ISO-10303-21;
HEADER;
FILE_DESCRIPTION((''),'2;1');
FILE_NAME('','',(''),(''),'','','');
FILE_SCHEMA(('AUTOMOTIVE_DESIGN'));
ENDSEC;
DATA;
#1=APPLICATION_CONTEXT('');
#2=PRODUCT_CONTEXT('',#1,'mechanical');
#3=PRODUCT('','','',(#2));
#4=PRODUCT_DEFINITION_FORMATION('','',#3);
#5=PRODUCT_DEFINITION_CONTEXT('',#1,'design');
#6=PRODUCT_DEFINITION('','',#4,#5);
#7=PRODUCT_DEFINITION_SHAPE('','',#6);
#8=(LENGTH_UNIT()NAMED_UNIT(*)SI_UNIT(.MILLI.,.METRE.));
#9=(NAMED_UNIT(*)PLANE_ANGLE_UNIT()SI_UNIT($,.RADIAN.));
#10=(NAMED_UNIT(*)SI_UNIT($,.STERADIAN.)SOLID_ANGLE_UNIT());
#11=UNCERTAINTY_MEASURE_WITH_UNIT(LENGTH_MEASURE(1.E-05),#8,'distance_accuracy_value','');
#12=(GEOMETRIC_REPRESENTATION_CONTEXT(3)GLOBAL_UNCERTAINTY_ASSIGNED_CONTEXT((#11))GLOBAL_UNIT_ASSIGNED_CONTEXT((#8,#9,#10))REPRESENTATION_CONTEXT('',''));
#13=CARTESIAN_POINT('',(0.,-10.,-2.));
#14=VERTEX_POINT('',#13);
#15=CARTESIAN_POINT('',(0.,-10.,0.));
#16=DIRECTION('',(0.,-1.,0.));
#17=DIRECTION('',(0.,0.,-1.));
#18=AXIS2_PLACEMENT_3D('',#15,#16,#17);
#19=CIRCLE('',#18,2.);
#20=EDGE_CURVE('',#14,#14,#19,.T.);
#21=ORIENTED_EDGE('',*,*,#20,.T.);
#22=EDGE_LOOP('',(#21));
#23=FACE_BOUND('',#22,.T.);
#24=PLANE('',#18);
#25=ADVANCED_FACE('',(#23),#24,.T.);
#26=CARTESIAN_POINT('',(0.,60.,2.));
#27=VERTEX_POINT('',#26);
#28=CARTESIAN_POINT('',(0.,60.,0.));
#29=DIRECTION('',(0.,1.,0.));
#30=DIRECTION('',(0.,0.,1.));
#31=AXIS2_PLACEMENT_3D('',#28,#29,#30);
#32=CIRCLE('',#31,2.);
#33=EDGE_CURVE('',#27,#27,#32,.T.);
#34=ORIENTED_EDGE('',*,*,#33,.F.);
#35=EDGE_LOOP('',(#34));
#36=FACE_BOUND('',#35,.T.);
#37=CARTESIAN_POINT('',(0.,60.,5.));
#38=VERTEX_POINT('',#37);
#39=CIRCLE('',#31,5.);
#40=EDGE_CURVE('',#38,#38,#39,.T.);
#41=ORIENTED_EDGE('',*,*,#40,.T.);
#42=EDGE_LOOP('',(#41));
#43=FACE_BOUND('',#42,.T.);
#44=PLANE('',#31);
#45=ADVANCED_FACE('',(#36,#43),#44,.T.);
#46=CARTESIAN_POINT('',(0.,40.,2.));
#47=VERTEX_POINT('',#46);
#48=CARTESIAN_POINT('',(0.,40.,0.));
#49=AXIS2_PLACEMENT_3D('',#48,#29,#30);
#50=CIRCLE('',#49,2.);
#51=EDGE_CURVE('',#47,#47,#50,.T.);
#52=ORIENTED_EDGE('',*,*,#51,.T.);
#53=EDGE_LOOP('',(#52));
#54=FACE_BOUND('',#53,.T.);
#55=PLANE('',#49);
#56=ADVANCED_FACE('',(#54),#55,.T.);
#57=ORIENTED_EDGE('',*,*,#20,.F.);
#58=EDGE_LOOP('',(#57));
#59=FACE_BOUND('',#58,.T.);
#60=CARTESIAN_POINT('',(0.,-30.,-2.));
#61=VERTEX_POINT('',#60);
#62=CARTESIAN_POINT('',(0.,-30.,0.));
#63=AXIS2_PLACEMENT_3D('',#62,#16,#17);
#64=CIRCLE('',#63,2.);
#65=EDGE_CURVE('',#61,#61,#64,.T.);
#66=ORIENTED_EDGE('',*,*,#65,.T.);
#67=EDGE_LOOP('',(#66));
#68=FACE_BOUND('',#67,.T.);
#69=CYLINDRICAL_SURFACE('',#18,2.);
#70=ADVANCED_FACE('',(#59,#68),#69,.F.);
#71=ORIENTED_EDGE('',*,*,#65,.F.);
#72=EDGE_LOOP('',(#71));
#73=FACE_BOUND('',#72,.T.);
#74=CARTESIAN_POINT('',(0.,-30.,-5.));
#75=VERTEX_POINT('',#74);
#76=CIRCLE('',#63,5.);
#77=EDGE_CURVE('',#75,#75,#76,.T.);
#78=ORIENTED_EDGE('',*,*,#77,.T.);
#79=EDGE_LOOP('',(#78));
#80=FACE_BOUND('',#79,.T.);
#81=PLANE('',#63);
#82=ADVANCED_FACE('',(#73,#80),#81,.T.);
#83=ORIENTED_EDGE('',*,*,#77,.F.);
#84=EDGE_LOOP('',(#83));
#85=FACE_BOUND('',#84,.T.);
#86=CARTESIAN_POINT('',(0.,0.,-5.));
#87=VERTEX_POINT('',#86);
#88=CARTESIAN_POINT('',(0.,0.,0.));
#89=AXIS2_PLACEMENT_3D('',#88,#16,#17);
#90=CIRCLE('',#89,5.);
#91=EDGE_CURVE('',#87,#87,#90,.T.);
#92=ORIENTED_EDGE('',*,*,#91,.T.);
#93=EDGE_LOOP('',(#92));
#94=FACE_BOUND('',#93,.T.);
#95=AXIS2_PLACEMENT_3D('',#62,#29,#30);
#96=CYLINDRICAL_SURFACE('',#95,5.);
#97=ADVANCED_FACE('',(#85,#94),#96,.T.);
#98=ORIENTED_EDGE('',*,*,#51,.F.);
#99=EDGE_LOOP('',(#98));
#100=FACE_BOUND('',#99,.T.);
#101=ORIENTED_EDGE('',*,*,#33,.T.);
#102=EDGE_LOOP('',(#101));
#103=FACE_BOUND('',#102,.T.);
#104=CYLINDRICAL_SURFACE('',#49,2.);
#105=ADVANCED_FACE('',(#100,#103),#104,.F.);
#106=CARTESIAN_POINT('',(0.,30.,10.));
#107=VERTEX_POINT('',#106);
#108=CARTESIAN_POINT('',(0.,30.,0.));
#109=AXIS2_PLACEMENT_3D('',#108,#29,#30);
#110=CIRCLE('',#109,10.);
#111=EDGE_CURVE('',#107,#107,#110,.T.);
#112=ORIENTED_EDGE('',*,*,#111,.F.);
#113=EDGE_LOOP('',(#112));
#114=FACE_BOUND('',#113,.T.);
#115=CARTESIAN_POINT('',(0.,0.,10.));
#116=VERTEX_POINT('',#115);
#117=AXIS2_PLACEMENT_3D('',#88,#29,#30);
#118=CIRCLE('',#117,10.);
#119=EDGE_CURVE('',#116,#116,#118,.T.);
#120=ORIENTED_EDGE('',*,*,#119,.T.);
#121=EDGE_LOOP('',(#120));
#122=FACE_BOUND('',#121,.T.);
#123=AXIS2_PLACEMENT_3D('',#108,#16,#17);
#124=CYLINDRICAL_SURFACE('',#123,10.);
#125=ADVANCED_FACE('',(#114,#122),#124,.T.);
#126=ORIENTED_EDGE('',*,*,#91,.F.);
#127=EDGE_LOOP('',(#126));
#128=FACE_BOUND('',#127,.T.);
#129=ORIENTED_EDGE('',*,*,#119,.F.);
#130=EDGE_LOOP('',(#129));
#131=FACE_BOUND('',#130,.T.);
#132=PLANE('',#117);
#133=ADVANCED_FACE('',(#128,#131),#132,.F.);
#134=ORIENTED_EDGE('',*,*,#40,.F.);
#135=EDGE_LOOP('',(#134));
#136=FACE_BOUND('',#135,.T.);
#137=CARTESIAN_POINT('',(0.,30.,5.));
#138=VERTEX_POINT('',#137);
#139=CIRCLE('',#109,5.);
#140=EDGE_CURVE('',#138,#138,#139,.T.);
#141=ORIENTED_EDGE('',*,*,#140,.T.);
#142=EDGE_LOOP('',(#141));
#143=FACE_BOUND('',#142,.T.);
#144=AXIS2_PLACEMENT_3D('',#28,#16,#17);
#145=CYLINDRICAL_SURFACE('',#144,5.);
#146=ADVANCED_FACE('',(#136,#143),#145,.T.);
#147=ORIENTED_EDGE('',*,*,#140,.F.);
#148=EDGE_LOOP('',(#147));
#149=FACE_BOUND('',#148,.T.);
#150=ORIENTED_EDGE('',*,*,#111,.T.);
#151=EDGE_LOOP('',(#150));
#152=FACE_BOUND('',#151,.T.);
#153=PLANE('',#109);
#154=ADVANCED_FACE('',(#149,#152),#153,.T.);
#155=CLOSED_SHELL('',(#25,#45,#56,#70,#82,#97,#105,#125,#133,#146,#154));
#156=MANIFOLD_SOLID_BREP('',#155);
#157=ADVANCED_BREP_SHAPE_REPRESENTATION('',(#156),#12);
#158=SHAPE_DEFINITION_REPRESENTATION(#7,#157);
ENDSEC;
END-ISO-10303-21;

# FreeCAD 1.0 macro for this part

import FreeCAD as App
import Part
import Sketcher

V = App.Vector
Q = App.Units.Quantity

doc = App.newDocument("Part")
body = doc.addObject("PartDesign::Body", "Body")

sketch1 = body.newObject("Sketcher::SketchObject", "Sketch")
sketch1.AttachmentSupport = (doc.getObject("XZ_Plane"), [""])
sketch1.MapMode = "FlatFace"
sketch1.addGeometry(Part.Circle(V(0, 0, 0), V(0, 0, 1), 10), False)
sketch1.addConstraint([
    Sketcher.Constraint("Coincident", 0, 3, -1, 1),
    Sketcher.Constraint("Diameter", 0, Q("20 mm")),
])
pad1 = body.newObject("PartDesign::Pad", "Pad")
pad1.Profile = sketch1
pad1.Length = 30
pad1.Reversed = True

sketch2 = body.newObject("Sketcher::SketchObject", "Sketch001")
sketch2.AttachmentSupport = (doc.getObject("XZ_Plane"), [""])
sketch2.MapMode = "FlatFace"
sketch2.AttachmentOffset = App.Placement(V(0, 0, -30), App.Rotation())
sketch2.addGeometry(Part.Circle(V(0, 0, 0), V(0, 0, 1), 5), False)
sketch2.addConstraint([
    Sketcher.Constraint("Coincident", 0, 3, -1, 1),
    Sketcher.Constraint("Diameter", 0, Q("10 mm")),
])
pad2 = body.newObject("PartDesign::Pad", "Pad001")
pad2.Profile = sketch2
pad2.Length = 30
pad2.Reversed = True

sketch3 = body.newObject("Sketcher::SketchObject", "Sketch002")
sketch3.AttachmentSupport = (doc.getObject("XZ_Plane"), [""])
sketch3.MapMode = "FlatFace"
sketch3.AttachmentOffset = App.Placement(V(0, 0, 30), App.Rotation())
sketch3.addGeometry(Part.Circle(V(0, 0, 0), V(0, 0, 1), 5), False)
sketch3.addConstraint([
    Sketcher.Constraint("Coincident", 0, 3, -1, 1),
    Sketcher.Constraint("Diameter", 0, Q("10 mm")),
])
pad3 = body.newObject("PartDesign::Pad", "Pad002")
pad3.Profile = sketch3
pad3.Length = 30
pad3.Reversed = True

sketch4 = body.newObject("Sketcher::SketchObject", "Sketch003")
sketch4.AttachmentSupport = (doc.getObject("XZ_Plane"), [""])
sketch4.MapMode = "FlatFace"
sketch4.AttachmentOffset = App.Placement(V(0, 0, -60), App.Rotation())
sketch4.addGeometry(Part.Circle(V(0, 0, 0), V(0, 0, 1), 2), False)
sketch4.addConstraint([
    Sketcher.Constraint("Coincident", 0, 3, -1, 1),
    Sketcher.Constraint("Diameter", 0, Q("4 mm")),
])
pocket1 = body.newObject("PartDesign::Pocket", "Pocket")
pocket1.Profile = sketch4
pocket1.Length = 20
pocket1.Reversed = True

sketch5 = body.newObject("Sketcher::SketchObject", "Sketch004")
sketch5.AttachmentSupport = (doc.getObject("XZ_Plane"), [""])
sketch5.MapMode = "FlatFace"
sketch5.AttachmentOffset = App.Placement(V(0, 0, 10), App.Rotation())
sketch5.addGeometry(Part.Circle(V(0, 0, 0), V(0, 0, 1), 2), False)
sketch5.addConstraint([
    Sketcher.Constraint("Coincident", 0, 3, -1, 1),
    Sketcher.Constraint("Diameter", 0, Q("4 mm")),
])
pocket2 = body.newObject("PartDesign::Pocket", "Pocket001")
pocket2.Profile = sketch5
pocket2.Length = 20
pocket2.Reversed = True

doc.recompute()
